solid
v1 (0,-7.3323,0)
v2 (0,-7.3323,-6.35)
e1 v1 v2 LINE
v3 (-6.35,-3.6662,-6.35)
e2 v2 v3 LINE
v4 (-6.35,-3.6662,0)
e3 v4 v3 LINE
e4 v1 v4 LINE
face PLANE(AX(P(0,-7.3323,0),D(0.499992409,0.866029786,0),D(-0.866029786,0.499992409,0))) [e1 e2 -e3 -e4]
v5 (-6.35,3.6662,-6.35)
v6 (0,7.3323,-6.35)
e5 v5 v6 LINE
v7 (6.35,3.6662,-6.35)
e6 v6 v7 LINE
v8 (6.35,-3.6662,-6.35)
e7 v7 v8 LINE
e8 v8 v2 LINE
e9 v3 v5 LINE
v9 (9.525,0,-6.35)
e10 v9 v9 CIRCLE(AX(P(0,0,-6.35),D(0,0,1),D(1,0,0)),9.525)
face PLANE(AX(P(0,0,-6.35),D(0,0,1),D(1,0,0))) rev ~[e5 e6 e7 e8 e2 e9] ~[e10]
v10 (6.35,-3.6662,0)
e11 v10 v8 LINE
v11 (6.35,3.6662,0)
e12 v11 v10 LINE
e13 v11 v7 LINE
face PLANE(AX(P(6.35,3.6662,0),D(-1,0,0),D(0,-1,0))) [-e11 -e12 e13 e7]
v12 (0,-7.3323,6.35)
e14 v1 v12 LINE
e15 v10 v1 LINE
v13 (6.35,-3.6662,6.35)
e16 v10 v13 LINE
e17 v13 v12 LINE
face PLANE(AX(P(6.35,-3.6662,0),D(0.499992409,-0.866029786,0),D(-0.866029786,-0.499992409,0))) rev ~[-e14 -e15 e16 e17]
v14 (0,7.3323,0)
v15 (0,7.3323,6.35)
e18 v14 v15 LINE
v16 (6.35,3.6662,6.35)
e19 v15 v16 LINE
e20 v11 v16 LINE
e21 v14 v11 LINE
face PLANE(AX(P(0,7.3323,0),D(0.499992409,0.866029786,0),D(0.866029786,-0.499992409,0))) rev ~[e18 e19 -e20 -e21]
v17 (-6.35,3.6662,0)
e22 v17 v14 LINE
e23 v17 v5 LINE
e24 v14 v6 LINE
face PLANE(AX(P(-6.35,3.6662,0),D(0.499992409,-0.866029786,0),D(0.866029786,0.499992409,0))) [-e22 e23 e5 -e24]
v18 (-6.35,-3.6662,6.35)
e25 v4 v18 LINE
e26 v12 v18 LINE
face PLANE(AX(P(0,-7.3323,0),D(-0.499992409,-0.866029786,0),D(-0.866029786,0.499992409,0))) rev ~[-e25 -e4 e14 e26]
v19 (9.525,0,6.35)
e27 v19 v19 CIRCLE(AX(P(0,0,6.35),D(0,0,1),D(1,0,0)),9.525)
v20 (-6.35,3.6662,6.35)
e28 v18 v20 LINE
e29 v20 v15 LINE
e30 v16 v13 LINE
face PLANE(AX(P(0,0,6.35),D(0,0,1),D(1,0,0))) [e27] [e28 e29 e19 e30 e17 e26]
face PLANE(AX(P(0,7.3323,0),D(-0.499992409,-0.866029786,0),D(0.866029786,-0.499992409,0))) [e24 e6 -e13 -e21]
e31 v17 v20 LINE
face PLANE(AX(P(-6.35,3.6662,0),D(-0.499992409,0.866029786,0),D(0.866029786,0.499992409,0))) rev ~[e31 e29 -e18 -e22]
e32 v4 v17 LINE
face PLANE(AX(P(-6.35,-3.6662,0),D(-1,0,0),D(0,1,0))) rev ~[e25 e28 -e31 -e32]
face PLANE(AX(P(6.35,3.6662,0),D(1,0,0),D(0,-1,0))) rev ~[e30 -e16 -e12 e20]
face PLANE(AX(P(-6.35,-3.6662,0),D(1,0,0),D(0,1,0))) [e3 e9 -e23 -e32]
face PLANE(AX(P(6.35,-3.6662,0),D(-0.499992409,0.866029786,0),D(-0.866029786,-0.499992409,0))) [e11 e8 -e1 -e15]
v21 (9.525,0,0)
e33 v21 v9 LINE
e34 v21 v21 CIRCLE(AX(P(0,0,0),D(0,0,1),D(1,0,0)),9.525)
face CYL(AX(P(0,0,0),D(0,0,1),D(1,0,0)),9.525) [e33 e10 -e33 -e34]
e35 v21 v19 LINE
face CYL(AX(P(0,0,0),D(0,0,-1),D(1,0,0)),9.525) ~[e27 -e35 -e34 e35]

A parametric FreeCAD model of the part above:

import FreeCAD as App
import Part
import Sketcher
from FreeCAD import Vector
Q = App.Units.Quantity

doc = App.newDocument("Part")
body = doc.addObject("PartDesign::Body", "Body")

sketch1 = doc.addObject("Sketcher::SketchObject", "Sketch")
body.addObject(sketch1)
sketch1.AttachmentSupport = (doc.XY_Plane, [""])
sketch1.MapMode = "FlatFace"
sketch1.addGeometry([
    Part.Circle(Vector(0, 0, 0), Vector(0, 0, 1), 10),
    Part.LineSegment(Vector(-6, 4, 0), Vector(0, 7, 0)),
    Part.LineSegment(Vector(0, 7, 0), Vector(6, 4, 0)),
    Part.LineSegment(Vector(6, 4, 0), Vector(6, -4, 0)),
    Part.LineSegment(Vector(6, -4, 0), Vector(0, -7, 0)),
    Part.LineSegment(Vector(0, -7, 0), Vector(-6, -4, 0)),
    Part.LineSegment(Vector(-6, -4, 0), Vector(-6, 4, 0)),
], False)
sketch1.addConstraint([
    Sketcher.Constraint("Coincident", 1, 2, 2, 1),
    Sketcher.Constraint("Coincident", 2, 2, 3, 1),
    Sketcher.Constraint("Coincident", 3, 2, 4, 1),
    Sketcher.Constraint("Coincident", 4, 2, 5, 1),
    Sketcher.Constraint("Coincident", 5, 2, 6, 1),
    Sketcher.Constraint("Coincident", 6, 2, 1, 1),
    Sketcher.Constraint("Vertical", 3),
    Sketcher.Constraint("Vertical", 6),
    Sketcher.Constraint("Coincident", 0, 3, -1, 1),
    Sketcher.Constraint("Symmetric", 1, 2, 4, 2, -1, 1),
    Sketcher.Constraint("Symmetric", 2, 2, 5, 2, -1, 1),
    Sketcher.Constraint("PointOnObject", 1, 2, -2),
    Sketcher.Constraint("Parallel", 1, 4),
    Sketcher.Constraint("Horizontal", 3, 2, 5, 2),
    Sketcher.Constraint("Diameter", 0, Q("0.75 in")),
    Sketcher.Constraint("DistanceX", 5, 2, 3, 2, Q("0.5 in")),
    Sketcher.Constraint("Angle", 1, Q("29.9995 deg")),
    Sketcher.Constraint("DistanceY", 3, 2, 1, 2, Q("0.433 in")),
])
pad1 = doc.addObject("PartDesign::Pad", "Pad")
body.addObject(pad1)
pad1.Profile = sketch1
pad1.Length = Q("0.5 in")
pad1.Midplane = True

doc.recompute()
